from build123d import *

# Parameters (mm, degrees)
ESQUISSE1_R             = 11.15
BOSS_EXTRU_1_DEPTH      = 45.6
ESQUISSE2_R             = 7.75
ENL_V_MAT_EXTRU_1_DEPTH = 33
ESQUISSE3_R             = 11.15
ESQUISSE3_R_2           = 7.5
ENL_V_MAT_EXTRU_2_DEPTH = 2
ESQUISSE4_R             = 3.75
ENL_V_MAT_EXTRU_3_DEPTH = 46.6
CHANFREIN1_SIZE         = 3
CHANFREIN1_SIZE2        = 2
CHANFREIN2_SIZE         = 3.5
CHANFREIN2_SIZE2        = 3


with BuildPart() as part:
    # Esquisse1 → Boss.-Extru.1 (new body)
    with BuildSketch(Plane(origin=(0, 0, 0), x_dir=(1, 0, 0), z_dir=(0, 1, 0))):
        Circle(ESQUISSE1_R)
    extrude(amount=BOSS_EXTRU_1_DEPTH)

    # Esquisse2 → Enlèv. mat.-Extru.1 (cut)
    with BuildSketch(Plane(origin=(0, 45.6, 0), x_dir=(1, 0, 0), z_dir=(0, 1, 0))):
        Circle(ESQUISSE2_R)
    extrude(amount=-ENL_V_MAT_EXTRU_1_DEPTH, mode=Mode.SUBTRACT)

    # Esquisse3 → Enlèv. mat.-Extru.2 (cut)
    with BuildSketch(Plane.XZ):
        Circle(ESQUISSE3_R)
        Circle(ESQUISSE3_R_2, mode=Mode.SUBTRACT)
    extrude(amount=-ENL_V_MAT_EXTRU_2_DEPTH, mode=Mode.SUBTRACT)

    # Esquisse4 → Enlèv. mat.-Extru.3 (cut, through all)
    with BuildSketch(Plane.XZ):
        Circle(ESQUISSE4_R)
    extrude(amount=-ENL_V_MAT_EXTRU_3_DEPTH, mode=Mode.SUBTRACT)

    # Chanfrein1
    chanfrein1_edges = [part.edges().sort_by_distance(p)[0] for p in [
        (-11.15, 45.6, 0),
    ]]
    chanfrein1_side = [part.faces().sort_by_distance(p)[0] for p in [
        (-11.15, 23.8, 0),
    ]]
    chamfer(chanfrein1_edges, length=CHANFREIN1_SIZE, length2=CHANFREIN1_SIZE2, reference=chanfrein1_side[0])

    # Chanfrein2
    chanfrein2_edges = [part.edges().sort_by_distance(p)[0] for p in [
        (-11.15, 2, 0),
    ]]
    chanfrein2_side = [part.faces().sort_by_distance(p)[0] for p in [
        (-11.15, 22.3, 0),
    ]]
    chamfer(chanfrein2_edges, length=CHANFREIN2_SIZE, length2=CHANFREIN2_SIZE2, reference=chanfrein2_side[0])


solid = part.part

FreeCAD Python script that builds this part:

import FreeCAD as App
import Part
import Sketcher


def edges_at(feature, points):
    """Names of the edges that pass closest to the given points."""
    edges = feature.Shape.Edges
    near = lambda p: min(range(len(edges)), key=lambda i: edges[i].distToShape(Part.Vertex(*p))[0])
    return sorted({f"Edge{near(p) + 1}" for p in points})

doc = App.newDocument("Part")
body = doc.addObject("PartDesign::Body", "Body")

# Sketch on XZ plane
sketch1 = body.newObject("Sketcher::SketchObject", "Sketch")
sketch1.AttachmentSupport = (doc.getObject("XZ_Plane"), [""])
sketch1.MapMode = "FlatFace"
sketch1.addGeometry(Part.Circle(App.Vector(0, 0, 0), App.Vector(0, 0, 1), 11.15), False)
sketch1.addConstraint([
    Sketcher.Constraint("Coincident", 0, 3, -1, 1),
    Sketcher.Constraint("Diameter", 0, 22.3),
])
pad1 = body.newObject("PartDesign::Pad", "Pad")
pad1.Profile = sketch1
pad1.Length = 45.6
pad1.Reversed = True

# Sketch on XZ plane
sketch2 = body.newObject("Sketcher::SketchObject", "Sketch001")
sketch2.AttachmentSupport = (doc.getObject("XZ_Plane"), [""])
sketch2.MapMode = "FlatFace"
sketch2.AttachmentOffset = App.Placement(App.Vector(0, 0, -45.6), App.Rotation())
sketch2.addGeometry(Part.Circle(App.Vector(0, 0, 0), App.Vector(0, 0, 1), 7.75), False)
sketch2.addConstraint([
    Sketcher.Constraint("Coincident", 0, 3, -1, 1),
    Sketcher.Constraint("Diameter", 0, 15.5),
])
pocket1 = body.newObject("PartDesign::Pocket", "Pocket")
pocket1.Profile = sketch2
pocket1.Length = 33
pocket1.Reversed = True

# Sketch on XZ plane
sketch3 = body.newObject("Sketcher::SketchObject", "Sketch002")
sketch3.AttachmentSupport = (doc.getObject("XZ_Plane"), [""])
sketch3.MapMode = "FlatFace"
sketch3.addGeometry([
    Part.Circle(App.Vector(0, 0, 0), App.Vector(0, 0, 1), 11.15),
    Part.Circle(App.Vector(0, 0, 0), App.Vector(0, 0, 1), 7.5),
], False)
sketch3.addConstraint([
    Sketcher.Constraint("Coincident", 0, 3, -1, 1),
    Sketcher.Constraint("Coincident", 1, 3, -1, 1),
    Sketcher.Constraint("Diameter", 1, 15.0),
    Sketcher.Constraint("Diameter", 0, 22.3),
])
pocket2 = body.newObject("PartDesign::Pocket", "Pocket001")
pocket2.Profile = sketch3
pocket2.Length = 2

# Sketch on XZ plane
sketch4 = body.newObject("Sketcher::SketchObject", "Sketch003")
sketch4.AttachmentSupport = (doc.getObject("XZ_Plane"), [""])
sketch4.MapMode = "FlatFace"
sketch4.addGeometry(Part.Circle(App.Vector(0, 0, 0), App.Vector(0, 0, 1), 3.75), False)
sketch4.addConstraint([
    Sketcher.Constraint("Coincident", 0, 3, -1, 1),
    Sketcher.Constraint("Diameter", 0, 7.5),
])
pocket3 = body.newObject("PartDesign::Pocket", "Pocket002")
pocket3.Profile = sketch4
pocket3.Type = "ThroughAll"
doc.recompute()

chamfer = body.newObject("PartDesign::Chamfer", "Chamfer")
chamfer.Base = (pocket3, edges_at(pocket3, [(-11.15, 45.6, 0)]))
chamfer.ChamferType = "Two distances"
chamfer.Size = 3
chamfer.Size2 = 2
doc.recompute()

chamfer2 = body.newObject("PartDesign::Chamfer", "Chamfer001")
chamfer2.Base = (chamfer, edges_at(chamfer, [(-11.15, 2, 0)]))
chamfer2.ChamferType = "Two distances"
chamfer2.Size = 3.5
chamfer2.Size2 = 3

doc.recompute()
